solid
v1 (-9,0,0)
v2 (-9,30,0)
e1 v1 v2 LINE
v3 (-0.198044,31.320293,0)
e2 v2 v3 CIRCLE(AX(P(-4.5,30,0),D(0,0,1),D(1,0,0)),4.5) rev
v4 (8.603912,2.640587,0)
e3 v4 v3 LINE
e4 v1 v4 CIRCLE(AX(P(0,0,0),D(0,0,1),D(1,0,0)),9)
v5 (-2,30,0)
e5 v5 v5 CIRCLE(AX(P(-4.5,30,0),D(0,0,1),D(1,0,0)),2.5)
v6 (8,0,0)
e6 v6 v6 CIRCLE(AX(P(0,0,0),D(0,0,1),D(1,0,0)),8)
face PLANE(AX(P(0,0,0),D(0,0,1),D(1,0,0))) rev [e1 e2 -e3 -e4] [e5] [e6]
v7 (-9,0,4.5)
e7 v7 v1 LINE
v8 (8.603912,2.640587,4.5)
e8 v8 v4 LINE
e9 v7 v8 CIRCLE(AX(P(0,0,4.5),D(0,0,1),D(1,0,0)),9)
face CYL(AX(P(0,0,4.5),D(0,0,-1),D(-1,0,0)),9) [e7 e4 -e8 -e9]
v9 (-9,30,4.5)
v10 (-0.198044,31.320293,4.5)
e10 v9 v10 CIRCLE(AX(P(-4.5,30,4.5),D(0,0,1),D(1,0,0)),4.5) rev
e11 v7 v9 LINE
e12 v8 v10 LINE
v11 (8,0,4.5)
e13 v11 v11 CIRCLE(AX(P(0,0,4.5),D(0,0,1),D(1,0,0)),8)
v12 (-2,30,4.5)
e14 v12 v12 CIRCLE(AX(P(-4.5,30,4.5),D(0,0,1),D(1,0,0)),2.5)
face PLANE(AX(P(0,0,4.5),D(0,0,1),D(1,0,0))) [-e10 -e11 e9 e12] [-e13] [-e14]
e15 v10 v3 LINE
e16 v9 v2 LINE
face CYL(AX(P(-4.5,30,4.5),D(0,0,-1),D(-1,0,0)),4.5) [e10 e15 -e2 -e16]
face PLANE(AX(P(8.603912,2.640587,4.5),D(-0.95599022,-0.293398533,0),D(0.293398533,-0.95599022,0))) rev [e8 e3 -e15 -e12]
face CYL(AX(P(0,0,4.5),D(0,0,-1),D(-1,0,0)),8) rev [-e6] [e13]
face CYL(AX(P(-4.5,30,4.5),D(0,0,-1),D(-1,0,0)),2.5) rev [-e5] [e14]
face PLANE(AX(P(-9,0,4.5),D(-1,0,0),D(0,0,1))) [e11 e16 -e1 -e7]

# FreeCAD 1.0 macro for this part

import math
import FreeCAD as App
import Part
import Sketcher

V = App.Vector

doc = App.newDocument("Part")
params = doc.addObject("Spreadsheet::Sheet", "Params")
for row, (alias, value) in enumerate([
    ("sketch1_diameter", "16 mm"),
    ("sketch1_diameter2", "5 mm"),
    ("sketch1_radius", "9 mm"),
    ("sketch1_radius2", "4.5 mm"),
    ("sketch1_height", "30 mm"),
    ("pad1_length", "4.5 mm"),
], start=1):
    params.set(f"A{row}", alias)
    params.set(f"B{row}", "=" + value)
    params.setAlias(f"B{row}", alias)

body = doc.addObject("PartDesign::Body", "Body")

# Sketch on XY plane
sketch1 = doc.addObject("Sketcher::SketchObject", "Sketch")
body.addObject(sketch1)
sketch1.AttachmentSupport = (doc.XY_Plane, [""])
sketch1.MapMode = "FlatFace"
sketch1.addGeometry(Part.LineSegment(V(-9, 30, 0), V(-9, 0, 0)), False)
sketch1.addGeometry(Part.ArcOfCircle(Part.Circle(V(0, 0, 0), V(0, 0, 1), 9), math.radians(180), math.radians(377.061531)), False)
sketch1.addGeometry(Part.LineSegment(V(8.603912, 2.640587, 0), V(-0.198044, 31.320293, 0)), False)
sketch1.addGeometry(Part.ArcOfCircle(Part.Circle(V(-4.5, 30, 0), V(0, 0, 1), 4.5), math.radians(17.061531), math.radians(180)), False)
sketch1.addGeometry(Part.Circle(V(0, 0, 0), V(0, 0, 1), 8), False)
sketch1.addGeometry(Part.Circle(V(-4.5, 30, 0), V(0, 0, 1), 2.5), False)
sketch1.addConstraint(Sketcher.Constraint("Tangent", 0, 2, 1, 1))
sketch1.addConstraint(Sketcher.Constraint("Tangent", 1, 2, 2, 1))
sketch1.addConstraint(Sketcher.Constraint("Tangent", 2, 2, 3, 1))
sketch1.addConstraint(Sketcher.Constraint("Tangent", 3, 2, 0, 1))
sketch1.addConstraint(Sketcher.Constraint("Vertical", 0))
sketch1.addConstraint(Sketcher.Constraint("Coincident", 1, 3, -1, 1))
sketch1.addConstraint(Sketcher.Constraint("Coincident", 4, 3, -1, 1))
sketch1.addConstraint(Sketcher.Constraint("Coincident", 5, 3, 3, 3))
sketch1.addConstraint(Sketcher.Constraint("Diameter", 4, 16.0))
sketch1.addConstraint(Sketcher.Constraint("Diameter", 5, 5.0))
sketch1.addConstraint(Sketcher.Constraint("Radius", 1, 9.0))
sketch1.addConstraint(Sketcher.Constraint("Radius", 3, 4.5))
sketch1.addConstraint(Sketcher.Constraint("DistanceY", 0, 2, 0, 1, 30.0))
sketch1.setExpression("Constraints[8]", "Params.sketch1_diameter")
sketch1.setExpression("Constraints[9]", "Params.sketch1_diameter2")
sketch1.setExpression("Constraints[10]", "Params.sketch1_radius")
sketch1.setExpression("Constraints[11]", "Params.sketch1_radius2")
sketch1.setExpression("Constraints[12]", "Params.sketch1_height")
pad1 = doc.addObject("PartDesign::Pad", "Pad")
body.addObject(pad1)
pad1.Profile = sketch1
pad1.setExpression("Length", "Params.pad1_length")

doc.recompute()
